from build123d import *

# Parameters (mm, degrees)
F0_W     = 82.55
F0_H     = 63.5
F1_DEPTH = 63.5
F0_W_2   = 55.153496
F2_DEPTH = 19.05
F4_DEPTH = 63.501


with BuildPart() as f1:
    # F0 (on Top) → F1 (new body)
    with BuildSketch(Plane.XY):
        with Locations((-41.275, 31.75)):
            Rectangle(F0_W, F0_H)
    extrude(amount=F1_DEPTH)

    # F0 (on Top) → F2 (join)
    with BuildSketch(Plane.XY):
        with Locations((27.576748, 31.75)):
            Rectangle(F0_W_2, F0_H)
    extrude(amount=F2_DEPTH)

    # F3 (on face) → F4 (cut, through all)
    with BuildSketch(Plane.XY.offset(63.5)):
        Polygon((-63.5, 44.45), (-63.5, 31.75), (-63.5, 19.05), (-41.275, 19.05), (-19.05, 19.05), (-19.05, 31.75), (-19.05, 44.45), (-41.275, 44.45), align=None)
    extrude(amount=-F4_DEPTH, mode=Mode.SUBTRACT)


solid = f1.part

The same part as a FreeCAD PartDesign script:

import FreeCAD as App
import Part
import Sketcher

V = App.Vector
Q = App.Units.Quantity

doc = App.newDocument("Part")
body = doc.addObject("PartDesign::Body", "Body")

# Sketch on XY plane
sketch1 = body.newObject("Sketcher::SketchObject", "Sketch")
sketch1.AttachmentSupport = (doc.getObject("XY_Plane"), [""])
sketch1.MapMode = "FlatFace"
sketch1.addGeometry([
    Part.LineSegment(V(-82.55, 63.5, 0), V(-82.55, 0, 0)),
    Part.LineSegment(V(-82.55, 0, 0), V(0, 0, 0)),
    Part.LineSegment(V(0, 0, 0), V(0, 63.5, 0)),
    Part.LineSegment(V(0, 63.5, 0), V(-82.55, 63.5, 0)),
], False)
sketch1.addConstraint([
    Sketcher.Constraint("Coincident", 0, 2, 1, 1),
    Sketcher.Constraint("Coincident", 1, 2, 2, 1),
    Sketcher.Constraint("Coincident", 2, 2, 3, 1),
    Sketcher.Constraint("Coincident", 3, 2, 0, 1),
    Sketcher.Constraint("Vertical", 0),
    Sketcher.Constraint("Horizontal", 1),
    Sketcher.Constraint("Vertical", 2),
    Sketcher.Constraint("Horizontal", 3),
    Sketcher.Constraint("Coincident", 1, 2, -1, 1),
    Sketcher.Constraint("DistanceY", 0, 2, 0, 1, Q("2.5 in")),
    Sketcher.Constraint("DistanceX", 1, 1, 1, 2, Q("3.25 in")),
])
pad1 = body.newObject("PartDesign::Pad", "Pad")
pad1.Profile = sketch1
pad1.Length = Q("2.5 in")

# Sketch on XY plane
sketch2 = body.newObject("Sketcher::SketchObject", "Sketch001")
sketch2.AttachmentSupport = (doc.getObject("XY_Plane"), [""])
sketch2.MapMode = "FlatFace"
sketch2.addGeometry([
    Part.LineSegment(V(0, 63.5, 0), V(0, 0, 0)),
    Part.LineSegment(V(0, 0, 0), V(55.153496, 0, 0)),
    Part.LineSegment(V(55.153496, 0, 0), V(55.153496, 63.5, 0)),
    Part.LineSegment(V(55.153496, 63.5, 0), V(0, 63.5, 0)),
], False)
sketch2.addConstraint([
    Sketcher.Constraint("Coincident", 0, 2, 1, 1),
    Sketcher.Constraint("Coincident", 1, 2, 2, 1),
    Sketcher.Constraint("Coincident", 2, 2, 3, 1),
    Sketcher.Constraint("Coincident", 3, 2, 0, 1),
    Sketcher.Constraint("Vertical", 0),
    Sketcher.Constraint("Horizontal", 1),
    Sketcher.Constraint("Vertical", 2),
    Sketcher.Constraint("Horizontal", 3),
    Sketcher.Constraint("Coincident", 0, 2, -1, 1),
    Sketcher.Constraint("DistanceY", 0, 2, 0, 1, Q("2.5 in")),
    Sketcher.Constraint("DistanceX", 1, 1, 1, 2, Q("55.153496 mm")),
])
pad2 = body.newObject("PartDesign::Pad", "Pad001")
pad2.Profile = sketch2
pad2.Length = Q("0.75 in")

# Sketch on XY plane
sketch3 = body.newObject("Sketcher::SketchObject", "Sketch002")
sketch3.AttachmentSupport = (doc.getObject("XY_Plane"), [""])
sketch3.MapMode = "FlatFace"
sketch3.AttachmentOffset = App.Placement(V(0, 0, 2.5 * 25.4), App.Rotation())
sketch3.addGeometry([
    Part.LineSegment(V(-63.5, 44.45, 0), V(-63.5, 19.05, 0)),
    Part.LineSegment(V(-63.5, 19.05, 0), V(-19.05, 19.05, 0)),
    Part.LineSegment(V(-19.05, 19.05, 0), V(-19.05, 44.45, 0)),
    Part.LineSegment(V(-19.05, 44.45, 0), V(-63.5, 44.45, 0)),
], False)
sketch3.addConstraint([
    Sketcher.Constraint("Coincident", 0, 2, 1, 1),
    Sketcher.Constraint("Coincident", 1, 2, 2, 1),
    Sketcher.Constraint("Coincident", 2, 2, 3, 1),
    Sketcher.Constraint("Coincident", 3, 2, 0, 1),
    Sketcher.Constraint("Vertical", 0),
    Sketcher.Constraint("Horizontal", 1),
    Sketcher.Constraint("Vertical", 2),
    Sketcher.Constraint("Horizontal", 3),
    Sketcher.Constraint("DistanceY", 0, 2, 0, 1, Q("1 in")),
    Sketcher.Constraint("DistanceX", 1, 1, 1, 2, Q("1.75 in")),
    Sketcher.Constraint("DistanceX", 0, 2, -1, 1, Q("2.5 in")),
    Sketcher.Constraint("DistanceY", -1, 1, 0, 2, Q("0.75 in")),
])
pocket1 = body.newObject("PartDesign::Pocket", "Pocket")
pocket1.Profile = sketch3
pocket1.Type = "ThroughAll"

doc.recompute()
